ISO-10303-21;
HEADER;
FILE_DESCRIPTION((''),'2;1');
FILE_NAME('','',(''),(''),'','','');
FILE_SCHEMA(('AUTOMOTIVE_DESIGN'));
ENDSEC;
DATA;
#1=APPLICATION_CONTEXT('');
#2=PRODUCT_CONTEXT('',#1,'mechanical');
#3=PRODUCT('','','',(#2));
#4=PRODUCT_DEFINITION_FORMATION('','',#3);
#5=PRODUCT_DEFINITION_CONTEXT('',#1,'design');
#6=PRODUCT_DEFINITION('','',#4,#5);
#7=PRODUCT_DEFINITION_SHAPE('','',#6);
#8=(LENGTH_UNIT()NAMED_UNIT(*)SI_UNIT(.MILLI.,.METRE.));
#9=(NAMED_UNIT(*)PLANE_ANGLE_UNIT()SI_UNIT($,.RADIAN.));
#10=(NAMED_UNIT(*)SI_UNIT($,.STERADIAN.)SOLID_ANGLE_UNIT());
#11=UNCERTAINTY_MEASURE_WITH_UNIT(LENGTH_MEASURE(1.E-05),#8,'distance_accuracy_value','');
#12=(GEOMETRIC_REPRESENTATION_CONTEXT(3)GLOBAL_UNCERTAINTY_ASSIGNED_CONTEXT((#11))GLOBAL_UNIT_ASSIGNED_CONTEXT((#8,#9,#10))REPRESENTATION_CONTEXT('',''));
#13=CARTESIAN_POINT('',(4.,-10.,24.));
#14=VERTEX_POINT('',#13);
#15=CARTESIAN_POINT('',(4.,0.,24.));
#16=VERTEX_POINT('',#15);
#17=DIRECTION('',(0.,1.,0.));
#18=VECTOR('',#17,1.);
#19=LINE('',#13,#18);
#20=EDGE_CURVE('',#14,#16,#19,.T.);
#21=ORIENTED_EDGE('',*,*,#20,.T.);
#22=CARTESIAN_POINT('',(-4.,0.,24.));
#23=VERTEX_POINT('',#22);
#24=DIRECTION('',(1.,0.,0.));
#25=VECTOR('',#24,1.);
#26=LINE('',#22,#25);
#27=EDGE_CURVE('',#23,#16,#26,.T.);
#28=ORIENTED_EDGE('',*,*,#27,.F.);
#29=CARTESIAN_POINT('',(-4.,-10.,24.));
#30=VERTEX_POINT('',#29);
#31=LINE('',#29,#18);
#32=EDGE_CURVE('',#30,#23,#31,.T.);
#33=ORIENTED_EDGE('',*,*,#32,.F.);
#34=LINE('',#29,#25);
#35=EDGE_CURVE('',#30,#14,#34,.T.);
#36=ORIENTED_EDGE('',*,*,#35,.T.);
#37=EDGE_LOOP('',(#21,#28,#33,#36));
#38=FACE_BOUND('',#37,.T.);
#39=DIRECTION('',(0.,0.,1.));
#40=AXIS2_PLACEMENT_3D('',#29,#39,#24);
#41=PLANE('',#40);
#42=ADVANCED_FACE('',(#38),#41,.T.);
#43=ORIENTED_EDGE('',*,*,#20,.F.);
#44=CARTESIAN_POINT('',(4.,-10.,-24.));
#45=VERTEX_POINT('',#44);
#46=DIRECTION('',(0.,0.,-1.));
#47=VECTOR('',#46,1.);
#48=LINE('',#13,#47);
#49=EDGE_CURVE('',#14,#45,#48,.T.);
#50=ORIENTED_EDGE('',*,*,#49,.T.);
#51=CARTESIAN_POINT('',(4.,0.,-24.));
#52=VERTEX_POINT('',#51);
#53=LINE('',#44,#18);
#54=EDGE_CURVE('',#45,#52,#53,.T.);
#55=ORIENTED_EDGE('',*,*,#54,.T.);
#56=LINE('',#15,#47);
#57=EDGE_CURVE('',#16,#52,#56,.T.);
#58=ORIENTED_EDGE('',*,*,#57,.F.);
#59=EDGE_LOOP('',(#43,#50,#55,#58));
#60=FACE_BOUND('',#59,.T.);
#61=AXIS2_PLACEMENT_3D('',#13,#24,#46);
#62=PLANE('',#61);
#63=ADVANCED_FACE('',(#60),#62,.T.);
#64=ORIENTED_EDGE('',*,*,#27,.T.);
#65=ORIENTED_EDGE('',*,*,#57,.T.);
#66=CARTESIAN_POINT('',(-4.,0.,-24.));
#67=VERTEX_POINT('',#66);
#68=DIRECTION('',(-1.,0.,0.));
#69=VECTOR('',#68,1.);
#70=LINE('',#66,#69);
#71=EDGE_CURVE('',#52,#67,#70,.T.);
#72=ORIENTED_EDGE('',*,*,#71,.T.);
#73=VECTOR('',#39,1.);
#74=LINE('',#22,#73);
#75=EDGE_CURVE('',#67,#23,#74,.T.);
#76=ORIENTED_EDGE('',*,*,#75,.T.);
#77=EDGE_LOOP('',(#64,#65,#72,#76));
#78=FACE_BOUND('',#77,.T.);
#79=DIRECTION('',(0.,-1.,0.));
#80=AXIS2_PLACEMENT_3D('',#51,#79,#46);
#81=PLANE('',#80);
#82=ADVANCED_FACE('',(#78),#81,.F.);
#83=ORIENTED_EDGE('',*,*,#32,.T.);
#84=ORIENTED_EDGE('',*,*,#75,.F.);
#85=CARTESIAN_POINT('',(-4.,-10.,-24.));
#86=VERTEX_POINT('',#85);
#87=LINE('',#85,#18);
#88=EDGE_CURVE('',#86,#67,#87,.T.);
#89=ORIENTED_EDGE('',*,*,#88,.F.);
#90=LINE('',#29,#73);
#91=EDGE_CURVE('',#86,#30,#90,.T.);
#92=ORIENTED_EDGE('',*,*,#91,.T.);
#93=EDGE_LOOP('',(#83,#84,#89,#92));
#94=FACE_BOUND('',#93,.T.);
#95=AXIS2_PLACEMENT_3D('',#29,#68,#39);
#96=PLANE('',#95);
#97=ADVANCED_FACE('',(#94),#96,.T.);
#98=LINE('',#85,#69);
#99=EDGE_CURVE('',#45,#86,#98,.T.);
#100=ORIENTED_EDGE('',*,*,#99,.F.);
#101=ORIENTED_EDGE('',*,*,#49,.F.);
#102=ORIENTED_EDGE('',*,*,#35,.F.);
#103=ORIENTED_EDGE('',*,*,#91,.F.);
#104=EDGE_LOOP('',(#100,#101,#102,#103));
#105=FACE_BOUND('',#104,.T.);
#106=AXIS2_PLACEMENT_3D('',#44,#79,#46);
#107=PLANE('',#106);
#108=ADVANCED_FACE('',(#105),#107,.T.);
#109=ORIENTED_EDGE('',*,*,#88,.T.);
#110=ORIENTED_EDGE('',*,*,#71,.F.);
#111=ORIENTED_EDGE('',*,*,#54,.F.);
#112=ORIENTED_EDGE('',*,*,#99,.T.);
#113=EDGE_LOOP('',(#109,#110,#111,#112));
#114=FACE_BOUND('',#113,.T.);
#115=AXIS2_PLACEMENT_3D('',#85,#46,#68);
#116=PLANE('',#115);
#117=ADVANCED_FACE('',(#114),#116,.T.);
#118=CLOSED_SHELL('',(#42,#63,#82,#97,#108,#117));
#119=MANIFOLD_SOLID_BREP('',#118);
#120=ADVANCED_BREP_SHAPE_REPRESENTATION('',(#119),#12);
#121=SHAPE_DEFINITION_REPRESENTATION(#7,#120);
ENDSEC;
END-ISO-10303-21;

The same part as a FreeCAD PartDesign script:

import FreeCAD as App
import Part
import Sketcher
from FreeCAD import Vector
Q = App.Units.Quantity


def add_polygon(sketch, points):
    """Adds a closed chain of lines whose ends are joined by coincident constraints."""
    first, n = sketch.GeometryCount, len(points)
    for a, b in zip(points, points[1:] + points[:1]):
        sketch.addGeometry(Part.LineSegment(App.Vector(*a, 0), App.Vector(*b, 0)), False)
    for i in range(n):
        sketch.addConstraint(Sketcher.Constraint("Coincident", first + i, 2, first + (i + 1) % n, 1))

doc = App.newDocument("Part")
params = doc.addObject("Spreadsheet::Sheet", "Params")
for row, (alias, value) in enumerate([
    ("sketch1_width", "8 mm"),
    ("sketch1_height", "48 mm"),
    ("pad1_length", "10 mm"),
], start=1):
    params.set(f"A{row}", alias)
    params.set(f"B{row}", "=" + value)
    params.setAlias(f"B{row}", alias)

body = doc.addObject("PartDesign::Body", "Body")

# Sketch on XZ plane
sketch1 = body.newObject("Sketcher::SketchObject", "Sketch")
sketch1.AttachmentSupport = (doc.getObject("XZ_Plane"), [""])
sketch1.MapMode = "FlatFace"
add_polygon(sketch1, [(-4, -24), (-4, 24), (4, 24), (4, -24)])  # lines 0-3
sketch1.addConstraint(Sketcher.Constraint("Vertical", 0))
sketch1.addConstraint(Sketcher.Constraint("Horizontal", 1))
sketch1.addConstraint(Sketcher.Constraint("Vertical", 2))
sketch1.addConstraint(Sketcher.Constraint("Horizontal", 3))
sketch1.addConstraint(Sketcher.Constraint("Symmetric", 0, 2, 2, 2, -1, 1))
sketch1.addConstraint(Sketcher.Constraint("DistanceX", 1, 1, 1, 2, Q("8 mm")))
sketch1.addConstraint(Sketcher.Constraint("DistanceY", 0, 1, 0, 2, Q("48 mm")))
sketch1.setExpression("Constraints[9]", "Params.sketch1_width")
sketch1.setExpression("Constraints[10]", "Params.sketch1_height")
pad1 = body.newObject("PartDesign::Pad", "Pad")
pad1.Profile = sketch1
pad1.setExpression("Length", "Params.pad1_length")

doc.recompute()
